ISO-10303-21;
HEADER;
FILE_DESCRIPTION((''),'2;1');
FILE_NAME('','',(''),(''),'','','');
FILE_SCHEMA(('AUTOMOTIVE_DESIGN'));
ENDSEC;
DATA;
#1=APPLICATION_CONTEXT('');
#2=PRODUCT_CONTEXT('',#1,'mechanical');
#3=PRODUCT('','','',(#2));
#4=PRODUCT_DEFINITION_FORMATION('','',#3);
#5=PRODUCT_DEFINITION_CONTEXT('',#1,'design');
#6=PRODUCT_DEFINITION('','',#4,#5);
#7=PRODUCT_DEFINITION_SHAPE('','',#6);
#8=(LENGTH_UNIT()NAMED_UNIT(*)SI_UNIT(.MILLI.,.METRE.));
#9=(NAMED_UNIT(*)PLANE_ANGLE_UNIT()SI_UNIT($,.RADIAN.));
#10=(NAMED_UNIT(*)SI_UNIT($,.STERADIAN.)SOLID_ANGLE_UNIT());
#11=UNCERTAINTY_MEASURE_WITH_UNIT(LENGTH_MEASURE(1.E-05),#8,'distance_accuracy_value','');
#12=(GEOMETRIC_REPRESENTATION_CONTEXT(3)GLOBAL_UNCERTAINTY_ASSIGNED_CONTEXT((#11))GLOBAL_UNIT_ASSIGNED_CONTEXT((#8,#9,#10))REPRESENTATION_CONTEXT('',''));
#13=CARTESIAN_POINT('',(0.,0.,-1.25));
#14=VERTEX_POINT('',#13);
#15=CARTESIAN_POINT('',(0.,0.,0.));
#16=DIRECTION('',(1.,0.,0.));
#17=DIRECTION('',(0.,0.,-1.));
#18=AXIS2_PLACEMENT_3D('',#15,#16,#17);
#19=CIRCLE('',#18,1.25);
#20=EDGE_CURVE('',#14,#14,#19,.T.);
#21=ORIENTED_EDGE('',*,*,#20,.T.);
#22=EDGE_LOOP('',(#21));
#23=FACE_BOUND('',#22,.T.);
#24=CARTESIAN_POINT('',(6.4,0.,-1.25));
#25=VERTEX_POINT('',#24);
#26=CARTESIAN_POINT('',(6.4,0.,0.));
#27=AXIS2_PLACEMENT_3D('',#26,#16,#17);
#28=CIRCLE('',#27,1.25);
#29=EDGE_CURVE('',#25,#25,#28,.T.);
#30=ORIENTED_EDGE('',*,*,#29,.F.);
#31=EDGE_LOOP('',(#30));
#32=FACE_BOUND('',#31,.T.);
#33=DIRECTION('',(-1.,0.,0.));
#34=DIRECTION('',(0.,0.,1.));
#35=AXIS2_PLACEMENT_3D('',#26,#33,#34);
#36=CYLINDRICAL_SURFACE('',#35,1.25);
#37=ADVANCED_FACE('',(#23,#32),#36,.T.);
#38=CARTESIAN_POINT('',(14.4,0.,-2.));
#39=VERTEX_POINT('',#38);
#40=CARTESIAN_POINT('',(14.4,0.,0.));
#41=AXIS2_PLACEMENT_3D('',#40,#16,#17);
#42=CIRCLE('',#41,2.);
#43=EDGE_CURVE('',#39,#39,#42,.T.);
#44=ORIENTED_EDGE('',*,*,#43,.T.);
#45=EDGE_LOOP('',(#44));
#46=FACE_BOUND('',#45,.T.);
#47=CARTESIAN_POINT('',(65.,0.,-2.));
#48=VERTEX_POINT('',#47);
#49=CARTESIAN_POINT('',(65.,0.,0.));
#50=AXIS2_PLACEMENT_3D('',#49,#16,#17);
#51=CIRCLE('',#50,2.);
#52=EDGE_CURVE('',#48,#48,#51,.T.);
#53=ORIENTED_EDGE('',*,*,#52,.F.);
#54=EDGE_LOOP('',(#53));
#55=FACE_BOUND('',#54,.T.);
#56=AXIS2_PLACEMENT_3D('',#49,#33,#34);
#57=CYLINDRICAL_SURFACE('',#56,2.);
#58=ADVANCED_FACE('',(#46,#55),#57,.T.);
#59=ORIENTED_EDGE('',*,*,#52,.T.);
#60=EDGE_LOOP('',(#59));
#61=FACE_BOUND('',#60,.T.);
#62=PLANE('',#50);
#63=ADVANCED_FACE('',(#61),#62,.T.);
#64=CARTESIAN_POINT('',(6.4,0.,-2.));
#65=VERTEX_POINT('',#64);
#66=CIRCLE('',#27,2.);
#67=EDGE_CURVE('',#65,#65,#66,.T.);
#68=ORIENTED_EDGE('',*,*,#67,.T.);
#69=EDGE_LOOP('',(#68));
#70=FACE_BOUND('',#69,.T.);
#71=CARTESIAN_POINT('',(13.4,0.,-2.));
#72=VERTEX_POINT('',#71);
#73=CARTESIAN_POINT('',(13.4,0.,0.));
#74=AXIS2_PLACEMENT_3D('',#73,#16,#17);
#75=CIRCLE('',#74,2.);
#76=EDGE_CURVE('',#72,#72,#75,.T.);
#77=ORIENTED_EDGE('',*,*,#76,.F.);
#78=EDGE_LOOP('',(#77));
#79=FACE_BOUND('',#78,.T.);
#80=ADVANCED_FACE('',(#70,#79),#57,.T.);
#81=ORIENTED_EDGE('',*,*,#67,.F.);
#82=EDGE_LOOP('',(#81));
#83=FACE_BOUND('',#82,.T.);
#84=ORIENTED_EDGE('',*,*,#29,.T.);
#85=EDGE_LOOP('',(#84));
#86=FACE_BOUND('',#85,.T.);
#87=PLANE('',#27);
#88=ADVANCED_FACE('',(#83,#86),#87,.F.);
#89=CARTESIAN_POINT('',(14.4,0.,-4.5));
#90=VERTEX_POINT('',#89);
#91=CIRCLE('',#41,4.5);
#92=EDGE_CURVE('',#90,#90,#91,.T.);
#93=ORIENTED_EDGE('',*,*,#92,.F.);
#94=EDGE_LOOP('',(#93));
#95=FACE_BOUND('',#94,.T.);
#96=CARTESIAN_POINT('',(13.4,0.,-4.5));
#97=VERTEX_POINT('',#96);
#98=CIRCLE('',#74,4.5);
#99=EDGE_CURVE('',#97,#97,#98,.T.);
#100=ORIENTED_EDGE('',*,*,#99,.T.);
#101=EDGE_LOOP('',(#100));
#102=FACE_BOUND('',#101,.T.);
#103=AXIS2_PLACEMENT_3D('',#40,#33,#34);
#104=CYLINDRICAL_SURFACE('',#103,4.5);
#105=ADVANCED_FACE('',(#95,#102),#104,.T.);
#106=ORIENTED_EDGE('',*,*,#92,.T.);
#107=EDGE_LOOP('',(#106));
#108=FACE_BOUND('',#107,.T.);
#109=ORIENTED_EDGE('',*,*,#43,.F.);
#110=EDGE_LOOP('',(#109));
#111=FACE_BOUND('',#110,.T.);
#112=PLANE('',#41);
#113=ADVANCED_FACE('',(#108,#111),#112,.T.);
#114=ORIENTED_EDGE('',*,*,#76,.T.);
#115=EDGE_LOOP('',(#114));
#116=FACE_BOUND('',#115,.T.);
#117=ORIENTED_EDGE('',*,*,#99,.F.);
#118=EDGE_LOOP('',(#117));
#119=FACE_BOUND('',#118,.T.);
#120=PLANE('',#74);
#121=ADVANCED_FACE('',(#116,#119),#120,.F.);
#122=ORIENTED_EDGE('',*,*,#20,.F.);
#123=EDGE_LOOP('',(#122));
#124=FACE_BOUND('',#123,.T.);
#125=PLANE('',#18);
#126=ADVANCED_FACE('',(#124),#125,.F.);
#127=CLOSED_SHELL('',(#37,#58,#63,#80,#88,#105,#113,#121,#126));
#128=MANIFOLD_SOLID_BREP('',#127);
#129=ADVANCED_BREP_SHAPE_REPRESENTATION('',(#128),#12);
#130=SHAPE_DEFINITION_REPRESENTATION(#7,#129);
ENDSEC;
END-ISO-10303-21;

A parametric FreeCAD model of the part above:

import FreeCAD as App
import Part
import Sketcher
Q = App.Units.Quantity

doc = App.newDocument("Part")
body = doc.addObject("PartDesign::Body", "Body")

sketch1 = body.newObject("Sketcher::SketchObject", "Sketch")
sketch1.AttachmentSupport = (doc.getObject("YZ_Plane"), [""])
sketch1.MapMode = "FlatFace"
sketch1.addGeometry(Part.Circle(App.Vector(0, 0, 0), App.Vector(0, 0, 1), 2), False)
sketch1.addConstraint(Sketcher.Constraint("Coincident", 0, 3, -1, 1))
sketch1.addConstraint(Sketcher.Constraint("Diameter", 0, Q("4 mm")))
pad1 = body.newObject("PartDesign::Pad", "Pad")
pad1.Profile = sketch1
pad1.Length = 65

sketch2 = body.newObject("Sketcher::SketchObject", "Sketch001")
sketch2.AttachmentSupport = (doc.getObject("YZ_Plane"), [""])
sketch2.MapMode = "FlatFace"
sketch2.AttachmentOffset = App.Placement(App.Vector(0, 0, 13.4), App.Rotation())
sketch2.addGeometry(Part.Circle(App.Vector(0, 0, 0), App.Vector(0, 0, 1), 4.5), False)
sketch2.addConstraint(Sketcher.Constraint("Coincident", 0, 3, -1, 1))
sketch2.addConstraint(Sketcher.Constraint("Diameter", 0, Q("9 mm")))
pad2 = body.newObject("PartDesign::Pad", "Pad001")
pad2.Profile = sketch2
pad2.Length = 1

sketch3 = body.newObject("Sketcher::SketchObject", "Sketch002")
sketch3.AttachmentSupport = (doc.getObject("YZ_Plane"), [""])
sketch3.MapMode = "FlatFace"
sketch3.addGeometry(Part.Circle(App.Vector(0, 0, 0), App.Vector(0, 0, 1), 2), False)
sketch3.addGeometry(Part.Circle(App.Vector(0, 0, 0), App.Vector(0, 0, 1), 1.2), False)
sketch3.addConstraint(Sketcher.Constraint("Coincident", 0, 3, -1, 1))
sketch3.addConstraint(Sketcher.Constraint("Coincident", 1, 3, -1, 1))
sketch3.addConstraint(Sketcher.Constraint("Diameter", 0, Q("4 mm")))
sketch3.addConstraint(Sketcher.Constraint("Diameter", 1, Q("2.5 mm")))
pocket1 = body.newObject("PartDesign::Pocket", "Pocket")
pocket1.Profile = sketch3
pocket1.Length = 6.4
pocket1.Reversed = True

doc.recompute()
